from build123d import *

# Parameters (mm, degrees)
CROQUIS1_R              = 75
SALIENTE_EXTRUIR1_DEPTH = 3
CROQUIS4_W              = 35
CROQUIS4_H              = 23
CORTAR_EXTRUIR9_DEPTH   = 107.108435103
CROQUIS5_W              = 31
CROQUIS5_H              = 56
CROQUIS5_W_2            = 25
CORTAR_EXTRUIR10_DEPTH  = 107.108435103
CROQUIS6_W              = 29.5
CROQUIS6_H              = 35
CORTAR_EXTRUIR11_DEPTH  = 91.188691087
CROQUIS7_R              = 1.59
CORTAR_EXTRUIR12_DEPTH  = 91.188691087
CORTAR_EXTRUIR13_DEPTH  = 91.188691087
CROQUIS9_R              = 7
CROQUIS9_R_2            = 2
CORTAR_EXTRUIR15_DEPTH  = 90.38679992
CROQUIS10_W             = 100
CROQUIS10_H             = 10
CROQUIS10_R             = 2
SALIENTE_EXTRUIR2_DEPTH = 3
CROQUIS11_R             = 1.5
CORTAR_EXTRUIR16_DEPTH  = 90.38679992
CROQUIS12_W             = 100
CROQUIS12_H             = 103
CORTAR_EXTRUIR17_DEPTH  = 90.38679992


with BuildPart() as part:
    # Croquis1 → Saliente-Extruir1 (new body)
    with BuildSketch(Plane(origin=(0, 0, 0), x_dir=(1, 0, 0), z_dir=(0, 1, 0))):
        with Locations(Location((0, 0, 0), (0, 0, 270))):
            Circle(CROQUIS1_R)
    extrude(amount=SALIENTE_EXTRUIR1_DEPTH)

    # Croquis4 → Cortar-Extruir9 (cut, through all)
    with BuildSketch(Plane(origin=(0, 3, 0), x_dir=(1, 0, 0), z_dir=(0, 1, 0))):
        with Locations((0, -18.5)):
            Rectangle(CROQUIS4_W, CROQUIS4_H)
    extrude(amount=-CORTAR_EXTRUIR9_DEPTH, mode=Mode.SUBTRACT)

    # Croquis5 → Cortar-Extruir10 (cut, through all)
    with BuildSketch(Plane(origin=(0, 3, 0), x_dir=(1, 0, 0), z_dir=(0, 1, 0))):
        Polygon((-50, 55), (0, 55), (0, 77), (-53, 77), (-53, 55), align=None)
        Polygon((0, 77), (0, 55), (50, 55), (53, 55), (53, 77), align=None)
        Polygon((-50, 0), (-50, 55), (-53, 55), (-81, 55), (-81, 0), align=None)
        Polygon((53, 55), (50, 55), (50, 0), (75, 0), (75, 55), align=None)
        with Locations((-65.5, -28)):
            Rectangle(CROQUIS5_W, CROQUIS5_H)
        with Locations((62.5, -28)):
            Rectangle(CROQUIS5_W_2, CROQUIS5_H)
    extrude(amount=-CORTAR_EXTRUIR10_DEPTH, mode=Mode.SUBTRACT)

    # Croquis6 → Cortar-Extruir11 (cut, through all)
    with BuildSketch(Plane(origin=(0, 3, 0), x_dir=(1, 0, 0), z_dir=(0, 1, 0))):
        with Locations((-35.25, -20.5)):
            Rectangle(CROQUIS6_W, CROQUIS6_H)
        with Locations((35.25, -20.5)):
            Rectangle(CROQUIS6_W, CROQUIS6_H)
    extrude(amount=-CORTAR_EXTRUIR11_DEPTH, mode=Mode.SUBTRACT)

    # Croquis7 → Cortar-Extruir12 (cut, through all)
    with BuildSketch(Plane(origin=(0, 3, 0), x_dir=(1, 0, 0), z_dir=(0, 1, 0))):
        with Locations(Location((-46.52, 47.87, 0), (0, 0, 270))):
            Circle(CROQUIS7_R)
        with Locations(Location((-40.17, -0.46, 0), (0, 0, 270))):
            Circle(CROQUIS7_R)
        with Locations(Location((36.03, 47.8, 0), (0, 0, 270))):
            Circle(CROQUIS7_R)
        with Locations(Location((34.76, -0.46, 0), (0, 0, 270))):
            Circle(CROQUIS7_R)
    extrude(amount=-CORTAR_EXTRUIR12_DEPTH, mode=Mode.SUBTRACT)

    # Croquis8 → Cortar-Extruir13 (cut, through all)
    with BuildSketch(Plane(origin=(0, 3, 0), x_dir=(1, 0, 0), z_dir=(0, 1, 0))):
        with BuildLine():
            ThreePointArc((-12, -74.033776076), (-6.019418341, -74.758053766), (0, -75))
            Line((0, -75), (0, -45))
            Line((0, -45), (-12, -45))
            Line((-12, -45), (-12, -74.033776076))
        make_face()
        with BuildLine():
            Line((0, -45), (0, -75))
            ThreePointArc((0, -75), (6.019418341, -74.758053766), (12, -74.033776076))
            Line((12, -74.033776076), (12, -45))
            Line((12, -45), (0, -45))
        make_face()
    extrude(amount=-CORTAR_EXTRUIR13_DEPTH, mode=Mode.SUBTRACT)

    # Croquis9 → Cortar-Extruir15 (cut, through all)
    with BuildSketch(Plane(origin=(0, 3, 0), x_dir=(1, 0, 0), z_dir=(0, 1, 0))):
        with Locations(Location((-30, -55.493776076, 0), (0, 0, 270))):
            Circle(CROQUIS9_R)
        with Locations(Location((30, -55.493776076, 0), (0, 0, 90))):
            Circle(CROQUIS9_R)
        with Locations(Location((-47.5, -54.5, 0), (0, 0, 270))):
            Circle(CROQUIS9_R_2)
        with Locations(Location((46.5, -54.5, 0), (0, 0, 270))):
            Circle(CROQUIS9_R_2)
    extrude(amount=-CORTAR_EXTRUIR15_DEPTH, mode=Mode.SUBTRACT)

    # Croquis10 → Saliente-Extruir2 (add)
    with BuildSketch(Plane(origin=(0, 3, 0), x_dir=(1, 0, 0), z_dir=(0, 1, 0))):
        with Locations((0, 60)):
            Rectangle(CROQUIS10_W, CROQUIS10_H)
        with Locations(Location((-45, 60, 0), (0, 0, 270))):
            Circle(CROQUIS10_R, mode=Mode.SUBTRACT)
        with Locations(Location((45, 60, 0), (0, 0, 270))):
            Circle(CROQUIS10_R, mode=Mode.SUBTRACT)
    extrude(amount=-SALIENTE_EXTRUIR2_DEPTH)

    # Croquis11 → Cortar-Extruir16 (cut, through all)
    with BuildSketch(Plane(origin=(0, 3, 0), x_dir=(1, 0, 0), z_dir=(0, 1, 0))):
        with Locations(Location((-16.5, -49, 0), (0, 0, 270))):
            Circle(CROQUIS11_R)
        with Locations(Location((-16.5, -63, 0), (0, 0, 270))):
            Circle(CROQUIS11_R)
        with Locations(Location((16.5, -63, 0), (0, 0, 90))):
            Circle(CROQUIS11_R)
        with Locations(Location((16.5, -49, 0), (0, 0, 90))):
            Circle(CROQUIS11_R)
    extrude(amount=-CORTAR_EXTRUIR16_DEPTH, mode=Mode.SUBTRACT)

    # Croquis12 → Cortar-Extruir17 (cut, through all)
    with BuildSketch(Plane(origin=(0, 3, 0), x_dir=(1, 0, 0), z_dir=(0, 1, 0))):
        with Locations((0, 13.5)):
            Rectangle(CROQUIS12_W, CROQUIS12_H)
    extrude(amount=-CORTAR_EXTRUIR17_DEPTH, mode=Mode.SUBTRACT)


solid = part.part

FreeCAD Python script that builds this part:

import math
import FreeCAD as App
import Part
import Sketcher
Q = App.Units.Quantity

doc = App.newDocument("Part")
params = doc.addObject("Spreadsheet::Sheet", "Params")
for row, (alias, value) in enumerate([
    ("sketch1_diameter", "150 mm"),
    ("pad1_length", "3 mm"),
    ("sketch2_width", "35 mm"),
    ("sketch2_height", "23 mm"),
    ("sketch3_width", "28 mm"),
    ("sketch3_width2", "31 mm"),
    ("sketch3_width3", "100 mm"),
    ("sketch3_width4", "25 mm"),
    ("sketch3_height", "111 mm"),
    ("sketch4_height", "35 mm"),
    ("sketch4_width", "29.5 mm"),
    ("sketch5_diameter", "3.18 mm"),
    ("sketch6_radius", "75 mm"),
    ("sketch6_width", "24 mm"),
    ("sketch7_diameter", "14 mm"),
    ("sketch7_diameter2", "4 mm"),
    ("sketch8_diameter", "4 mm"),
    ("sketch8_width", "100 mm"),
    ("sketch8_height", "10 mm"),
    ("pad2_length", "3 mm"),
    ("sketch9_diameter", "3 mm"),
    ("sketch10_width", "100 mm"),
    ("sketch10_height", "103 mm"),
], start=1):
    params.set(f"A{row}", alias)
    params.set(f"B{row}", "=" + value)
    params.setAlias(f"B{row}", alias)

body = doc.addObject("PartDesign::Body", "Body")

# Sketch on XZ plane
sketch1 = doc.addObject("Sketcher::SketchObject", "Sketch")
body.addObject(sketch1)
sketch1.AttachmentSupport = (doc.XZ_Plane, [""])
sketch1.MapMode = "FlatFace"
sketch1.addGeometry(Part.Circle(App.Vector(0, 0, 0), App.Vector(0, 0, 1), 75), False)
sketch1.addConstraint([
    Sketcher.Constraint("Coincident", 0, 3, -1, 1),
    Sketcher.Constraint("Diameter", 0, Q("150 mm")),
])
sketch1.setExpression("Constraints[1]", "Params.sketch1_diameter")
pad1 = doc.addObject("PartDesign::Pad", "Pad")
body.addObject(pad1)
pad1.Profile = sketch1
pad1.setExpression("Length", "Params.pad1_length")
pad1.Reversed = True

# Sketch on XZ plane
sketch2 = doc.addObject("Sketcher::SketchObject", "Sketch001")
body.addObject(sketch2)
sketch2.AttachmentSupport = (doc.XZ_Plane, [""])
sketch2.MapMode = "FlatFace"
sketch2.AttachmentOffset = App.Placement(App.Vector(0, 0, -3), App.Rotation())
sketch2.addGeometry([
    Part.LineSegment(App.Vector(-18, 7, 0), App.Vector(-18, 30, 0)),
    Part.LineSegment(App.Vector(-18, 30, 0), App.Vector(18, 30, 0)),
    Part.LineSegment(App.Vector(18, 30, 0), App.Vector(18, 7, 0)),
    Part.LineSegment(App.Vector(18, 7, 0), App.Vector(-18, 7, 0)),
], False)
sketch2.addConstraint([
    Sketcher.Constraint("Coincident", 0, 2, 1, 1),
    Sketcher.Constraint("Coincident", 1, 2, 2, 1),
    Sketcher.Constraint("Coincident", 2, 2, 3, 1),
    Sketcher.Constraint("Coincident", 3, 2, 0, 1),
    Sketcher.Constraint("Vertical", 0),
    Sketcher.Constraint("Horizontal", 1),
    Sketcher.Constraint("Vertical", 2),
    Sketcher.Constraint("Horizontal", 3),
    Sketcher.Constraint("DistanceX", 1, 1, 1, 2, Q("35 mm")),
    Sketcher.Constraint("DistanceY", 0, 1, 0, 2, Q("23 mm")),
    Sketcher.Constraint("DistanceY", -1, 1, 0, 2, Q("30 mm")),
    Sketcher.Constraint("DistanceX", 0, 2, -1, 1, Q("17.5 mm")),
])
sketch2.setExpression("Constraints[8]", "Params.sketch2_width")
sketch2.setExpression("Constraints[9]", "Params.sketch2_height")
pocket1 = doc.addObject("PartDesign::Pocket", "Pocket")
body.addObject(pocket1)
pocket1.Profile = sketch2
pocket1.Type = "ThroughAll"
pocket1.Reversed = True

# Sketch on XZ plane
sketch3 = doc.addObject("Sketcher::SketchObject", "Sketch002")
body.addObject(sketch3)
sketch3.AttachmentSupport = (doc.XZ_Plane, [""])
sketch3.MapMode = "FlatFace"
sketch3.AttachmentOffset = App.Placement(App.Vector(0, 0, -3), App.Rotation())
sketch3.addGeometry([
    Part.LineSegment(App.Vector(-53, -77, 0), App.Vector(-53, -55, 0)),  # 0
    Part.LineSegment(App.Vector(-53, -55, 0), App.Vector(-81, -55, 0)),  # 1
    Part.LineSegment(App.Vector(-81, -55, 0), App.Vector(-81, 56, 0)),  # 2
    Part.LineSegment(App.Vector(-81, 56, 0), App.Vector(-50, 56, 0)),  # 3
    Part.LineSegment(App.Vector(-50, 56, 0), App.Vector(-50, -55, 0)),  # 4
    Part.LineSegment(App.Vector(-50, -55, 0), App.Vector(50, -55, 0)),  # 5
    Part.LineSegment(App.Vector(50, -55, 0), App.Vector(50, 56, 0)),  # 6
    Part.LineSegment(App.Vector(50, 56, 0), App.Vector(75, 56, 0)),  # 7
    Part.LineSegment(App.Vector(75, 56, 0), App.Vector(75, -55, 0)),  # 8
    Part.LineSegment(App.Vector(75, -55, 0), App.Vector(53, -55, 0)),  # 9
    Part.LineSegment(App.Vector(53, -55, 0), App.Vector(53, -77, 0)),  # 10
    Part.LineSegment(App.Vector(53, -77, 0), App.Vector(-53, -77, 0)),  # 11
], False)
sketch3.addConstraint([
    Sketcher.Constraint("Coincident", 0, 2, 1, 1),
    Sketcher.Constraint("Coincident", 1, 2, 2, 1),
    Sketcher.Constraint("Coincident", 2, 2, 3, 1),
    Sketcher.Constraint("Coincident", 3, 2, 4, 1),
    Sketcher.Constraint("Coincident", 4, 2, 5, 1),
    Sketcher.Constraint("Coincident", 5, 2, 6, 1),
    Sketcher.Constraint("Coincident", 6, 2, 7, 1),
    Sketcher.Constraint("Coincident", 7, 2, 8, 1),
    Sketcher.Constraint("Coincident", 8, 2, 9, 1),
    Sketcher.Constraint("Coincident", 9, 2, 10, 1),
    Sketcher.Constraint("Coincident", 10, 2, 11, 1),
    Sketcher.Constraint("Coincident", 11, 2, 0, 1),
    Sketcher.Constraint("Vertical", 0),
    Sketcher.Constraint("Horizontal", 1),
    Sketcher.Constraint("Vertical", 2),
    Sketcher.Constraint("Horizontal", 3),
    Sketcher.Constraint("Vertical", 4),
    Sketcher.Constraint("Horizontal", 5),
    Sketcher.Constraint("Vertical", 6),
    Sketcher.Constraint("Horizontal", 7),
    Sketcher.Constraint("Vertical", 8),
    Sketcher.Constraint("Horizontal", 9),
    Sketcher.Constraint("Vertical", 10),
    Sketcher.Constraint("Horizontal", 11),
    Sketcher.Constraint("Symmetric", 3, 2, 6, 2, -2),
    Sketcher.Constraint("Symmetric", 0, 2, 9, 2, -2),
    Sketcher.Constraint("Horizontal", 1, 2, 4, 2),
    Sketcher.Constraint("Equal", 9, 0),
    Sketcher.Constraint("DistanceX", 1, 2, 1, 1, Q("28 mm")),
    Sketcher.Constraint("DistanceX", 3, 1, 3, 2, Q("31 mm")),
    Sketcher.Constraint("DistanceX", 5, 1, 5, 2, Q("100 mm")),
    Sketcher.Constraint("DistanceX", 7, 1, 7, 2, Q("25 mm")),
    Sketcher.Constraint("DistanceY", 2, 1, 2, 2, Q("111 mm")),
    Sketcher.Constraint("DistanceY", 0, 2, -1, 1, Q("55 mm")),
])
sketch3.setExpression("Constraints[28]", "Params.sketch3_width")
sketch3.setExpression("Constraints[29]", "Params.sketch3_width2")
sketch3.setExpression("Constraints[30]", "Params.sketch3_width3")
sketch3.setExpression("Constraints[31]", "Params.sketch3_width4")
sketch3.setExpression("Constraints[32]", "Params.sketch3_height")
pocket2 = doc.addObject("PartDesign::Pocket", "Pocket001")
body.addObject(pocket2)
pocket2.Profile = sketch3
pocket2.Type = "ThroughAll"
pocket2.Reversed = True

# Sketch on XZ plane
sketch4 = doc.addObject("Sketcher::SketchObject", "Sketch003")
body.addObject(sketch4)
sketch4.AttachmentSupport = (doc.XZ_Plane, [""])
sketch4.MapMode = "FlatFace"
sketch4.AttachmentOffset = App.Placement(App.Vector(0, 0, -3), App.Rotation())
sketch4.addGeometry([
    Part.LineSegment(App.Vector(-50, 3, 0), App.Vector(-50, 38, 0)),  # 0
    Part.LineSegment(App.Vector(-50, 38, 0), App.Vector(-20, 38, 0)),  # 1
    Part.LineSegment(App.Vector(-20, 38, 0), App.Vector(-20, 3, 0)),  # 2
    Part.LineSegment(App.Vector(-20, 3, 0), App.Vector(-50, 3, 0)),  # 3
    Part.LineSegment(App.Vector(20, 3, 0), App.Vector(20, 38, 0)),  # 4
    Part.LineSegment(App.Vector(20, 38, 0), App.Vector(50, 38, 0)),  # 5
    Part.LineSegment(App.Vector(50, 38, 0), App.Vector(50, 3, 0)),  # 6
    Part.LineSegment(App.Vector(50, 3, 0), App.Vector(20, 3, 0)),  # 7
], False)
sketch4.addConstraint([
    Sketcher.Constraint("Coincident", 0, 2, 1, 1),
    Sketcher.Constraint("Coincident", 1, 2, 2, 1),
    Sketcher.Constraint("Coincident", 2, 2, 3, 1),
    Sketcher.Constraint("Coincident", 3, 2, 0, 1),
    Sketcher.Constraint("Coincident", 4, 2, 5, 1),
    Sketcher.Constraint("Coincident", 5, 2, 6, 1),
    Sketcher.Constraint("Coincident", 6, 2, 7, 1),
    Sketcher.Constraint("Coincident", 7, 2, 4, 1),
    Sketcher.Constraint("Vertical", 0),
    Sketcher.Constraint("Horizontal", 1),
    Sketcher.Constraint("Vertical", 2),
    Sketcher.Constraint("Horizontal", 3),
    Sketcher.Constraint("Vertical", 4),
    Sketcher.Constraint("Horizontal", 5),
    Sketcher.Constraint("Vertical", 6),
    Sketcher.Constraint("Horizontal", 7),
    Sketcher.Constraint("Symmetric", 1, 2, 4, 2, -2),
    Sketcher.Constraint("Symmetric", 3, 2, 6, 2, -2),
    Sketcher.Constraint("DistanceY", 0, 1, 0, 2, Q("35 mm")),
    Sketcher.Constraint("DistanceX", 1, 1, 1, 2, Q("29.5 mm")),
    Sketcher.Constraint("DistanceX", 0, 2, -1, 1, Q("50 mm")),
    Sketcher.Constraint("DistanceY", -1, 1, 0, 2, Q("38 mm")),
])
sketch4.setExpression("Constraints[18]", "Params.sketch4_height")
sketch4.setExpression("Constraints[19]", "Params.sketch4_width")
pocket3 = doc.addObject("PartDesign::Pocket", "Pocket002")
body.addObject(pocket3)
pocket3.Profile = sketch4
pocket3.Type = "ThroughAll"
pocket3.Reversed = True

# Sketch on XZ plane
sketch5 = doc.addObject("Sketcher::SketchObject", "Sketch004")
body.addObject(sketch5)
sketch5.AttachmentSupport = (doc.XZ_Plane, [""])
sketch5.MapMode = "FlatFace"
sketch5.AttachmentOffset = App.Placement(App.Vector(0, 0, -3), App.Rotation())
sketch5.addGeometry([
    Part.Circle(App.Vector(-46.5, -47.9, 0), App.Vector(0, 0, 1), 1.6),
    Part.Circle(App.Vector(-40.2, 0.5, 0), App.Vector(0, 0, 1), 1.6),
    Part.Circle(App.Vector(36, -47.8, 0), App.Vector(0, 0, 1), 1.6),
    Part.Circle(App.Vector(34.8, 0.5, 0), App.Vector(0, 0, 1), 1.6),
], False)
sketch5.addConstraint([
    Sketcher.Constraint("Equal", 0, 1),
    Sketcher.Constraint("Equal", 1, 2),
    Sketcher.Constraint("Equal", 2, 3),
    Sketcher.Constraint("Horizontal", 1, 3, 3, 3),
    Sketcher.Constraint("Diameter", 0, Q("3.18 mm")),
    Sketcher.Constraint("DistanceY", 2, 3, -1, 1, Q("47.8 mm")),
    Sketcher.Constraint("DistanceX", 1, 3, 2, 3, Q("76.2 mm")),
    Sketcher.Constraint("DistanceX", 0, 3, -1, 1, Q("46.52 mm")),
    Sketcher.Constraint("DistanceY", 0, 3, -1, 1, Q("47.87 mm")),
    Sketcher.Constraint("DistanceX", 1, 3, -1, 1, Q("40.17 mm")),
    Sketcher.Constraint("DistanceY", -1, 1, 1, 3, Q("0.46 mm")),
    Sketcher.Constraint("DistanceX", -1, 1, 3, 3, Q("34.76 mm")),
])
sketch5.setExpression("Constraints[4]", "Params.sketch5_diameter")
pocket4 = doc.addObject("PartDesign::Pocket", "Pocket003")
body.addObject(pocket4)
pocket4.Profile = sketch5
pocket4.Type = "ThroughAll"
pocket4.Reversed = True

# Sketch on XZ plane
sketch6 = doc.addObject("Sketcher::SketchObject", "Sketch005")
body.addObject(sketch6)
sketch6.AttachmentSupport = (doc.XZ_Plane, [""])
sketch6.MapMode = "FlatFace"
sketch6.AttachmentOffset = App.Placement(App.Vector(0, 0, -3), App.Rotation())
sketch6.addGeometry([
    Part.ArcOfCircle(Part.Circle(App.Vector(0, 0, 0), App.Vector(0, 0, 1), 75), math.radians(90), math.radians(99.21)),  # 0
    Part.ArcOfCircle(Part.Circle(App.Vector(0, 0, 0), App.Vector(0, 0, 1), 75), math.radians(80.79), math.radians(90)),  # 1
    Part.LineSegment(App.Vector(12, 74, 0), App.Vector(12, 45, 0)),  # 2
    Part.LineSegment(App.Vector(12, 45, 0), App.Vector(-12, 45, 0)),  # 3
    Part.LineSegment(App.Vector(-12, 45, 0), App.Vector(-12, 74, 0)),  # 4
], False)
sketch6.addConstraint([
    Sketcher.Constraint("Tangent", 0, 1, 1, 2),
    Sketcher.Constraint("Coincident", 1, 1, 2, 1),
    Sketcher.Constraint("Coincident", 2, 2, 3, 1),
    Sketcher.Constraint("Coincident", 3, 2, 4, 1),
    Sketcher.Constraint("Coincident", 4, 2, 0, 2),
    Sketcher.Constraint("Vertical", 2),
    Sketcher.Constraint("Horizontal", 3),
    Sketcher.Constraint("Vertical", 4),
    Sketcher.Constraint("Coincident", 0, 3, -1, 1),
    Sketcher.Constraint("Equal", 0, 1),
    Sketcher.Constraint("PointOnObject", 0, 1, -2),
    Sketcher.Constraint("Horizontal", 1, 1, 4, 2),
    Sketcher.Constraint("Radius", 0, Q("75 mm")),
    Sketcher.Constraint("DistanceX", 3, 2, 3, 1, Q("24 mm")),
    Sketcher.Constraint("DistanceY", -1, 1, 2, 2, Q("45 mm")),
])
sketch6.setExpression("Constraints[12]", "Params.sketch6_radius")
sketch6.setExpression("Constraints[13]", "Params.sketch6_width")
pocket5 = doc.addObject("PartDesign::Pocket", "Pocket004")
body.addObject(pocket5)
pocket5.Profile = sketch6
pocket5.Type = "ThroughAll"
pocket5.Reversed = True

# Sketch on XZ plane
sketch7 = doc.addObject("Sketcher::SketchObject", "Sketch006")
body.addObject(sketch7)
sketch7.AttachmentSupport = (doc.XZ_Plane, [""])
sketch7.MapMode = "FlatFace"
sketch7.AttachmentOffset = App.Placement(App.Vector(0, 0, -3), App.Rotation())
sketch7.addGeometry([
    Part.Circle(App.Vector(-30, 55.5, 0), App.Vector(0, 0, 1), 7),
    Part.Circle(App.Vector(30, 55.5, 0), App.Vector(0, 0, 1), 7),
    Part.Circle(App.Vector(-47.5, 54.5, 0), App.Vector(0, 0, 1), 2),
    Part.Circle(App.Vector(46.5, 54.5, 0), App.Vector(0, 0, 1), 2),
], False)
sketch7.addConstraint([
    Sketcher.Constraint("Equal", 0, 1),
    Sketcher.Constraint("Equal", 2, 3),
    Sketcher.Constraint("Symmetric", 0, 3, 1, 3, -2),
    Sketcher.Constraint("Horizontal", 2, 3, 3, 3),
    Sketcher.Constraint("Diameter", 0, Q("14 mm")),
    Sketcher.Constraint("Diameter", 2, Q("4 mm")),
    Sketcher.Constraint("DistanceX", 0, 3, -1, 1, Q("30 mm")),
    Sketcher.Constraint("DistanceX", 2, 3, 3, 3, Q("94 mm")),
    Sketcher.Constraint("DistanceX", 2, 3, -1, 1, Q("47.5 mm")),
    Sketcher.Constraint("DistanceY", -1, 1, 2, 3, Q("54.5 mm")),
    Sketcher.Constraint("DistanceY", -1, 1, 0, 3, Q("55.493776 mm")),
])
sketch7.setExpression("Constraints[4]", "Params.sketch7_diameter")
sketch7.setExpression("Constraints[5]", "Params.sketch7_diameter2")
pocket6 = doc.addObject("PartDesign::Pocket", "Pocket005")
body.addObject(pocket6)
pocket6.Profile = sketch7
pocket6.Type = "ThroughAll"
pocket6.Reversed = True

# Sketch on XZ plane
sketch8 = doc.addObject("Sketcher::SketchObject", "Sketch007")
body.addObject(sketch8)
sketch8.AttachmentSupport = (doc.XZ_Plane, [""])
sketch8.MapMode = "FlatFace"
sketch8.AttachmentOffset = App.Placement(App.Vector(0, 0, -3), App.Rotation())
sketch8.addGeometry([
    Part.LineSegment(App.Vector(-50, -65, 0), App.Vector(-50, -55, 0)),  # 0
    Part.LineSegment(App.Vector(-50, -55, 0), App.Vector(50, -55, 0)),  # 1
    Part.LineSegment(App.Vector(50, -55, 0), App.Vector(50, -65, 0)),  # 2
    Part.LineSegment(App.Vector(50, -65, 0), App.Vector(-50, -65, 0)),  # 3
    Part.Circle(App.Vector(-45, -60, 0), App.Vector(0, 0, 1), 2),  # 4
    Part.Circle(App.Vector(45, -60, 0), App.Vector(0, 0, 1), 2),  # 5
], False)
sketch8.addConstraint([
    Sketcher.Constraint("Coincident", 0, 2, 1, 1),
    Sketcher.Constraint("Coincident", 1, 2, 2, 1),
    Sketcher.Constraint("Coincident", 2, 2, 3, 1),
    Sketcher.Constraint("Coincident", 3, 2, 0, 1),
    Sketcher.Constraint("Vertical", 0),
    Sketcher.Constraint("Horizontal", 1),
    Sketcher.Constraint("Vertical", 2),
    Sketcher.Constraint("Horizontal", 3),
    Sketcher.Constraint("Equal", 4, 5),
    Sketcher.Constraint("Symmetric", 4, 3, 5, 3, -2),
    Sketcher.Constraint("Diameter", 4, Q("4 mm")),
    Sketcher.Constraint("DistanceX", 1, 1, 1, 2, Q("100 mm")),
    Sketcher.Constraint("DistanceY", 0, 1, 0, 2, Q("10 mm")),
    Sketcher.Constraint("DistanceX", 4, 3, -1, 1, Q("45 mm")),
    Sketcher.Constraint("DistanceY", 4, 3, -1, 1, Q("60 mm")),
    Sketcher.Constraint("DistanceX", 0, 2, -1, 1, Q("50 mm")),
    Sketcher.Constraint("DistanceY", 0, 2, -1, 1, Q("55 mm")),
])
sketch8.setExpression("Constraints[10]", "Params.sketch8_diameter")
sketch8.setExpression("Constraints[11]", "Params.sketch8_width")
sketch8.setExpression("Constraints[12]", "Params.sketch8_height")
pad2 = doc.addObject("PartDesign::Pad", "Pad001")
body.addObject(pad2)
pad2.Profile = sketch8
pad2.setExpression("Length", "Params.pad2_length")

# Sketch on XZ plane
sketch9 = doc.addObject("Sketcher::SketchObject", "Sketch008")
body.addObject(sketch9)
sketch9.AttachmentSupport = (doc.XZ_Plane, [""])
sketch9.MapMode = "FlatFace"
sketch9.AttachmentOffset = App.Placement(App.Vector(0, 0, -3), App.Rotation())
sketch9.addGeometry([
    Part.Circle(App.Vector(-16.5, 49, 0), App.Vector(0, 0, 1), 1.5),
    Part.Circle(App.Vector(-16.5, 63, 0), App.Vector(0, 0, 1), 1.5),
    Part.Circle(App.Vector(16.5, 63, 0), App.Vector(0, 0, 1), 1.5),
    Part.Circle(App.Vector(16.5, 49, 0), App.Vector(0, 0, 1), 1.5),
], False)
sketch9.addConstraint([
    Sketcher.Constraint("Equal", 0, 1),
    Sketcher.Constraint("Equal", 1, 2),
    Sketcher.Constraint("Equal", 2, 3),
    Sketcher.Constraint("Symmetric", 1, 3, 2, 3, -2),
    Sketcher.Constraint("Symmetric", 0, 3, 3, 3, -2),
    Sketcher.Constraint("Vertical", 0, 3, 1, 3),
    Sketcher.Constraint("Diameter", 0, Q("3 mm")),
    Sketcher.Constraint("DistanceY", -1, 1, 0, 3, Q("49 mm")),
    Sketcher.Constraint("DistanceY", -1, 1, 1, 3, Q("63 mm")),
    Sketcher.Constraint("DistanceX", 1, 3, 2, 3, Q("33 mm")),
])
sketch9.setExpression("Constraints[6]", "Params.sketch9_diameter")
pocket7 = doc.addObject("PartDesign::Pocket", "Pocket006")
body.addObject(pocket7)
pocket7.Profile = sketch9
pocket7.Type = "ThroughAll"
pocket7.Reversed = True

# Sketch on XZ plane
sketch10 = doc.addObject("Sketcher::SketchObject", "Sketch009")
body.addObject(sketch10)
sketch10.AttachmentSupport = (doc.XZ_Plane, [""])
sketch10.MapMode = "FlatFace"
sketch10.AttachmentOffset = App.Placement(App.Vector(0, 0, -3), App.Rotation())
sketch10.addGeometry([
    Part.LineSegment(App.Vector(-50, -65, 0), App.Vector(-50, 38, 0)),
    Part.LineSegment(App.Vector(-50, 38, 0), App.Vector(50, 38, 0)),
    Part.LineSegment(App.Vector(50, 38, 0), App.Vector(50, -65, 0)),
    Part.LineSegment(App.Vector(50, -65, 0), App.Vector(-50, -65, 0)),
], False)
sketch10.addConstraint([
    Sketcher.Constraint("Coincident", 0, 2, 1, 1),
    Sketcher.Constraint("Coincident", 1, 2, 2, 1),
    Sketcher.Constraint("Coincident", 2, 2, 3, 1),
    Sketcher.Constraint("Coincident", 3, 2, 0, 1),
    Sketcher.Constraint("Vertical", 0),
    Sketcher.Constraint("Horizontal", 1),
    Sketcher.Constraint("Vertical", 2),
    Sketcher.Constraint("Horizontal", 3),
    Sketcher.Constraint("DistanceX", 1, 1, 1, 2, Q("100 mm")),
    Sketcher.Constraint("DistanceY", 0, 1, 0, 2, Q("103 mm")),
    Sketcher.Constraint("DistanceX", 0, 2, -1, 1, Q("50 mm")),
    Sketcher.Constraint("DistanceY", -1, 1, 0, 2, Q("38 mm")),
])
sketch10.setExpression("Constraints[8]", "Params.sketch10_width")
sketch10.setExpression("Constraints[9]", "Params.sketch10_height")
pocket8 = doc.addObject("PartDesign::Pocket", "Pocket007")
body.addObject(pocket8)
pocket8.Profile = sketch10
pocket8.Type = "ThroughAll"
pocket8.Reversed = True

doc.recompute()
